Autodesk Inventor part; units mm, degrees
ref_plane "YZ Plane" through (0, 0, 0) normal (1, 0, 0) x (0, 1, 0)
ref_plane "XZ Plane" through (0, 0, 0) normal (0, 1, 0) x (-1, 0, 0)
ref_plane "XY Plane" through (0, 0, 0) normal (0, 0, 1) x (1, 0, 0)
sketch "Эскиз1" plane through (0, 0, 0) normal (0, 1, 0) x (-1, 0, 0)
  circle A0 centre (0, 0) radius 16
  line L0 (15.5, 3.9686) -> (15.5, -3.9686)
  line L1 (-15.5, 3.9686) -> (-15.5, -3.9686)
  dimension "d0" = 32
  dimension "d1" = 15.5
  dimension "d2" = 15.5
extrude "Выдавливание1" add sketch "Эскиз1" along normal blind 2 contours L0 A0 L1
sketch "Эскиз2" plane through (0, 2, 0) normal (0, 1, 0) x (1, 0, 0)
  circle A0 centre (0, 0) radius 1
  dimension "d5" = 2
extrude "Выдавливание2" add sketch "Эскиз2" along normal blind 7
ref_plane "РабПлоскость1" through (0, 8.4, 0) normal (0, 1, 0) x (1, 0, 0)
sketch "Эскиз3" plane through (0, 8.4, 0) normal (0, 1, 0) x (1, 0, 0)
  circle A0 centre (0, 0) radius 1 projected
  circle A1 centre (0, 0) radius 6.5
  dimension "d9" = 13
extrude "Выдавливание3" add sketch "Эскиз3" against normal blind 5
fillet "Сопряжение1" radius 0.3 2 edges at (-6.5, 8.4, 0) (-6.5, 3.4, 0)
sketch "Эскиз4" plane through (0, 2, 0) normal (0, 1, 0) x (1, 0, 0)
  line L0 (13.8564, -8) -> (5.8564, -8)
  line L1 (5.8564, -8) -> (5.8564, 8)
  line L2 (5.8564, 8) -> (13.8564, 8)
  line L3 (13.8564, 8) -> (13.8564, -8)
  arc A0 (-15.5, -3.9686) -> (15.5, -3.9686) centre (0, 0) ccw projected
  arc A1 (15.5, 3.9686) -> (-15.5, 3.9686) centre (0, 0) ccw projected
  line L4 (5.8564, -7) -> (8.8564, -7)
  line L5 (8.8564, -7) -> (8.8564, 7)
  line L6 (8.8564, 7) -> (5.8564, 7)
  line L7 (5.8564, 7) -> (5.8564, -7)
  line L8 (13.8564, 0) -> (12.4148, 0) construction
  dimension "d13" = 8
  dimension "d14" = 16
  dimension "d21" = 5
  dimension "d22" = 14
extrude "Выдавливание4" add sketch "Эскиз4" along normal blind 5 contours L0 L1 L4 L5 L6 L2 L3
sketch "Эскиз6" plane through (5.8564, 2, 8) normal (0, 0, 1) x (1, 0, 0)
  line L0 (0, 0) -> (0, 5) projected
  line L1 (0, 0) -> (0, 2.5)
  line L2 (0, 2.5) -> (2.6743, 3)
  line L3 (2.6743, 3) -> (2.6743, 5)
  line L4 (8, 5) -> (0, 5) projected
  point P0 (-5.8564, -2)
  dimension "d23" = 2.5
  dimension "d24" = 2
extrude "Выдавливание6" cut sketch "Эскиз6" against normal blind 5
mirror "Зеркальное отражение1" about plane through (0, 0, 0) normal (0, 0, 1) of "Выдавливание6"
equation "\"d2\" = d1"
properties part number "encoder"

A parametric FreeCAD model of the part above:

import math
import FreeCAD as App
import Part
import Sketcher
Q = App.Units.Quantity


def edges_at(feature, points):
    """Names of the edges that pass closest to the given points."""
    edges = feature.Shape.Edges
    near = lambda p: min(range(len(edges)), key=lambda i: edges[i].distToShape(Part.Vertex(*p))[0])
    return sorted({f"Edge{near(p) + 1}" for p in points})

doc = App.newDocument("Part")
body = doc.addObject("PartDesign::Body", "Body")

# Sketch on XZ plane
sketch1 = doc.addObject("Sketcher::SketchObject", "Sketch")
body.addObject(sketch1)
sketch1.AttachmentSupport = (doc.XZ_Plane, [""])
sketch1.MapMode = "FlatFace"
sketch1.addGeometry([
    Part.LineSegment(App.Vector(-15.5, -3.9686, 0), App.Vector(-15.5, 3.9686, 0)),
    Part.ArcOfCircle(Part.Circle(App.Vector(0, 0, 0), App.Vector(0, 0, 1), 16), math.radians(14.361418), math.radians(165.638582)),
    Part.LineSegment(App.Vector(15.5, 3.9686, 0), App.Vector(15.5, -3.9686, 0)),
    Part.ArcOfCircle(Part.Circle(App.Vector(0, 0, 0), App.Vector(0, 0, 1), 16), math.radians(-165.638582), math.radians(-14.361418)),
], False)
sketch1.addConstraint([
    Sketcher.Constraint("Coincident", 0, 2, 1, 2),
    Sketcher.Constraint("Coincident", 1, 1, 2, 1),
    Sketcher.Constraint("Coincident", 2, 2, 3, 2),
    Sketcher.Constraint("Coincident", 3, 1, 0, 1),
    Sketcher.Constraint("Vertical", 0),
    Sketcher.Constraint("Vertical", 2),
    Sketcher.Constraint("Coincident", 1, 3, -1, 1),
    Sketcher.Constraint("Coincident", 3, 3, -1, 1),
    Sketcher.Constraint("Equal", 1, 3),
    Sketcher.Constraint("Horizontal", 0, 2, 1, 1),
    Sketcher.Constraint("Radius", 1, Q("16 mm")),
    Sketcher.Constraint("DistanceX", 0, 2, -1, 1, Q("15.5 mm")),
])
pad1 = doc.addObject("PartDesign::Pad", "Pad")
body.addObject(pad1)
pad1.Profile = sketch1
pad1.Length = 2
pad1.Reversed = True

# Sketch on XZ plane
sketch2 = doc.addObject("Sketcher::SketchObject", "Sketch001")
body.addObject(sketch2)
sketch2.AttachmentSupport = (doc.XZ_Plane, [""])
sketch2.MapMode = "FlatFace"
sketch2.AttachmentOffset = App.Placement(App.Vector(0, 0, -2), App.Rotation())
sketch2.addGeometry(Part.Circle(App.Vector(0, 0, 0), App.Vector(0, 0, 1), 1), False)
sketch2.addConstraint([
    Sketcher.Constraint("Coincident", 0, 3, -1, 1),
    Sketcher.Constraint("Diameter", 0, Q("2 mm")),
])
pad2 = doc.addObject("PartDesign::Pad", "Pad001")
body.addObject(pad2)
pad2.Profile = sketch2
pad2.Length = 7
pad2.Reversed = True

# Sketch on XZ plane
sketch3 = doc.addObject("Sketcher::SketchObject", "Sketch002")
body.addObject(sketch3)
sketch3.AttachmentSupport = (doc.XZ_Plane, [""])
sketch3.MapMode = "FlatFace"
sketch3.AttachmentOffset = App.Placement(App.Vector(0, 0, -8.4), App.Rotation())
sketch3.addGeometry([
    Part.Circle(App.Vector(0, 0, 0), App.Vector(0, 0, 1), 6.5),
    Part.Circle(App.Vector(0, 0, 0), App.Vector(0, 0, 1), 1),
], False)
sketch3.addConstraint([
    Sketcher.Constraint("Coincident", 0, 3, -1, 1),
    Sketcher.Constraint("Coincident", 1, 3, -1, 1),
    Sketcher.Constraint("Diameter", 0, Q("13 mm")),
    Sketcher.Constraint("Diameter", 1, Q("2 mm")),
])
pad3 = doc.addObject("PartDesign::Pad", "Pad002")
body.addObject(pad3)
pad3.Profile = sketch3
pad3.Length = 5
doc.recompute()

fillet = doc.addObject("PartDesign::Fillet", "Fillet")
body.addObject(fillet)
fillet.Base = (pad3, edges_at(pad3, [(-6.5, 8.4, 0), (-6.5, 3.4, 0)]))
fillet.Radius = 0.3

# Sketch on XZ plane
sketch4 = doc.addObject("Sketcher::SketchObject", "Sketch003")
body.addObject(sketch4)
sketch4.AttachmentSupport = (doc.XZ_Plane, [""])
sketch4.MapMode = "FlatFace"
sketch4.AttachmentOffset = App.Placement(App.Vector(0, 0, -2), App.Rotation())
sketch4.addGeometry([
    Part.LineSegment(App.Vector(5.8564, 8, 0), App.Vector(13.8564, 8, 0)),  # 0
    Part.LineSegment(App.Vector(13.8564, 8, 0), App.Vector(13.8564, -8, 0)),  # 1
    Part.LineSegment(App.Vector(13.8564, -8, 0), App.Vector(5.8564, -8, 0)),  # 2
    Part.LineSegment(App.Vector(5.8564, -8, 0), App.Vector(5.8564, -7, 0)),  # 3
    Part.LineSegment(App.Vector(5.8564, -7, 0), App.Vector(8.8564, -7, 0)),  # 4
    Part.LineSegment(App.Vector(8.8564, -7, 0), App.Vector(8.8564, 7, 0)),  # 5
    Part.LineSegment(App.Vector(8.8564, 7, 0), App.Vector(5.8564, 7, 0)),  # 6
    Part.LineSegment(App.Vector(5.8564, 7, 0), App.Vector(5.8564, 8, 0)),  # 7
], False)
sketch4.addConstraint([
    Sketcher.Constraint("Coincident", 0, 2, 1, 1),
    Sketcher.Constraint("Coincident", 1, 2, 2, 1),
    Sketcher.Constraint("Coincident", 2, 2, 3, 1),
    Sketcher.Constraint("Coincident", 3, 2, 4, 1),
    Sketcher.Constraint("Coincident", 4, 2, 5, 1),
    Sketcher.Constraint("Coincident", 5, 2, 6, 1),
    Sketcher.Constraint("Coincident", 6, 2, 7, 1),
    Sketcher.Constraint("Coincident", 7, 2, 0, 1),
    Sketcher.Constraint("Horizontal", 0),
    Sketcher.Constraint("Vertical", 1),
    Sketcher.Constraint("Horizontal", 2),
    Sketcher.Constraint("Vertical", 3),
    Sketcher.Constraint("Horizontal", 4),
    Sketcher.Constraint("Vertical", 5),
    Sketcher.Constraint("Horizontal", 6),
    Sketcher.Constraint("Vertical", 7),
    Sketcher.Constraint("Symmetric", 3, 2, 6, 2, -1),
    Sketcher.Constraint("Equal", 3, 7),
    Sketcher.Constraint("DistanceX", 0, 1, 0, 2, Q("8 mm")),
    Sketcher.Constraint("DistanceY", 1, 2, 1, 1, Q("16 mm")),
    Sketcher.Constraint("DistanceY", 5, 1, 5, 2, Q("14 mm")),
    Sketcher.Constraint("DistanceX", 4, 2, 1, 2, Q("5 mm")),
    Sketcher.Constraint("DistanceX", -1, 1, 0, 2, Q("13.8564 mm")),
])
pad4 = doc.addObject("PartDesign::Pad", "Pad003")
body.addObject(pad4)
pad4.Profile = sketch4
pad4.Length = 5
pad4.Reversed = True

# Sketch on XY plane
sketch5 = doc.addObject("Sketcher::SketchObject", "Sketch004")
body.addObject(sketch5)
sketch5.AttachmentSupport = (doc.XY_Plane, [""])
sketch5.MapMode = "FlatFace"
sketch5.AttachmentOffset = App.Placement(App.Vector(0, 0, 8), App.Rotation())
sketch5.addGeometry([
    Part.LineSegment(App.Vector(5.8564, 7, 0), App.Vector(5.8564, 4.5, 0)),
    Part.LineSegment(App.Vector(5.8564, 4.5, 0), App.Vector(8.5307, 5, 0)),
    Part.LineSegment(App.Vector(8.5307, 5, 0), App.Vector(8.5307, 7, 0)),
    Part.LineSegment(App.Vector(8.5307, 7, 0), App.Vector(5.8564, 7, 0)),
], False)
sketch5.addConstraint([
    Sketcher.Constraint("Coincident", 0, 2, 1, 1),
    Sketcher.Constraint("Coincident", 1, 2, 2, 1),
    Sketcher.Constraint("Coincident", 2, 2, 3, 1),
    Sketcher.Constraint("Coincident", 3, 2, 0, 1),
    Sketcher.Constraint("Vertical", 0),
    Sketcher.Constraint("Vertical", 2),
    Sketcher.Constraint("Horizontal", 3),
    Sketcher.Constraint("DistanceY", 2, 1, 2, 2, Q("2 mm")),
    Sketcher.Constraint("DistanceY", 0, 2, 0, 1, Q("2.5 mm")),
    Sketcher.Constraint("DistanceY", -1, 1, 1, 2, Q("5 mm")),
    Sketcher.Constraint("Angle", 1, Q("10.59 deg")),
    Sketcher.Constraint("DistanceX", -1, 1, 0, 2, Q("5.8564 mm")),
])
pocket1 = doc.addObject("PartDesign::Pocket", "Pocket")
body.addObject(pocket1)
pocket1.Profile = sketch5
pocket1.Length = 5
doc.recompute()

mirrored = doc.addObject("PartDesign::Mirrored", "Mirrored")
body.addObject(mirrored)
mirrored.Originals = [pocket1]
mirrored.MirrorPlane = (doc.XY_Plane, [""])
body.Tip = mirrored

doc.recompute()
